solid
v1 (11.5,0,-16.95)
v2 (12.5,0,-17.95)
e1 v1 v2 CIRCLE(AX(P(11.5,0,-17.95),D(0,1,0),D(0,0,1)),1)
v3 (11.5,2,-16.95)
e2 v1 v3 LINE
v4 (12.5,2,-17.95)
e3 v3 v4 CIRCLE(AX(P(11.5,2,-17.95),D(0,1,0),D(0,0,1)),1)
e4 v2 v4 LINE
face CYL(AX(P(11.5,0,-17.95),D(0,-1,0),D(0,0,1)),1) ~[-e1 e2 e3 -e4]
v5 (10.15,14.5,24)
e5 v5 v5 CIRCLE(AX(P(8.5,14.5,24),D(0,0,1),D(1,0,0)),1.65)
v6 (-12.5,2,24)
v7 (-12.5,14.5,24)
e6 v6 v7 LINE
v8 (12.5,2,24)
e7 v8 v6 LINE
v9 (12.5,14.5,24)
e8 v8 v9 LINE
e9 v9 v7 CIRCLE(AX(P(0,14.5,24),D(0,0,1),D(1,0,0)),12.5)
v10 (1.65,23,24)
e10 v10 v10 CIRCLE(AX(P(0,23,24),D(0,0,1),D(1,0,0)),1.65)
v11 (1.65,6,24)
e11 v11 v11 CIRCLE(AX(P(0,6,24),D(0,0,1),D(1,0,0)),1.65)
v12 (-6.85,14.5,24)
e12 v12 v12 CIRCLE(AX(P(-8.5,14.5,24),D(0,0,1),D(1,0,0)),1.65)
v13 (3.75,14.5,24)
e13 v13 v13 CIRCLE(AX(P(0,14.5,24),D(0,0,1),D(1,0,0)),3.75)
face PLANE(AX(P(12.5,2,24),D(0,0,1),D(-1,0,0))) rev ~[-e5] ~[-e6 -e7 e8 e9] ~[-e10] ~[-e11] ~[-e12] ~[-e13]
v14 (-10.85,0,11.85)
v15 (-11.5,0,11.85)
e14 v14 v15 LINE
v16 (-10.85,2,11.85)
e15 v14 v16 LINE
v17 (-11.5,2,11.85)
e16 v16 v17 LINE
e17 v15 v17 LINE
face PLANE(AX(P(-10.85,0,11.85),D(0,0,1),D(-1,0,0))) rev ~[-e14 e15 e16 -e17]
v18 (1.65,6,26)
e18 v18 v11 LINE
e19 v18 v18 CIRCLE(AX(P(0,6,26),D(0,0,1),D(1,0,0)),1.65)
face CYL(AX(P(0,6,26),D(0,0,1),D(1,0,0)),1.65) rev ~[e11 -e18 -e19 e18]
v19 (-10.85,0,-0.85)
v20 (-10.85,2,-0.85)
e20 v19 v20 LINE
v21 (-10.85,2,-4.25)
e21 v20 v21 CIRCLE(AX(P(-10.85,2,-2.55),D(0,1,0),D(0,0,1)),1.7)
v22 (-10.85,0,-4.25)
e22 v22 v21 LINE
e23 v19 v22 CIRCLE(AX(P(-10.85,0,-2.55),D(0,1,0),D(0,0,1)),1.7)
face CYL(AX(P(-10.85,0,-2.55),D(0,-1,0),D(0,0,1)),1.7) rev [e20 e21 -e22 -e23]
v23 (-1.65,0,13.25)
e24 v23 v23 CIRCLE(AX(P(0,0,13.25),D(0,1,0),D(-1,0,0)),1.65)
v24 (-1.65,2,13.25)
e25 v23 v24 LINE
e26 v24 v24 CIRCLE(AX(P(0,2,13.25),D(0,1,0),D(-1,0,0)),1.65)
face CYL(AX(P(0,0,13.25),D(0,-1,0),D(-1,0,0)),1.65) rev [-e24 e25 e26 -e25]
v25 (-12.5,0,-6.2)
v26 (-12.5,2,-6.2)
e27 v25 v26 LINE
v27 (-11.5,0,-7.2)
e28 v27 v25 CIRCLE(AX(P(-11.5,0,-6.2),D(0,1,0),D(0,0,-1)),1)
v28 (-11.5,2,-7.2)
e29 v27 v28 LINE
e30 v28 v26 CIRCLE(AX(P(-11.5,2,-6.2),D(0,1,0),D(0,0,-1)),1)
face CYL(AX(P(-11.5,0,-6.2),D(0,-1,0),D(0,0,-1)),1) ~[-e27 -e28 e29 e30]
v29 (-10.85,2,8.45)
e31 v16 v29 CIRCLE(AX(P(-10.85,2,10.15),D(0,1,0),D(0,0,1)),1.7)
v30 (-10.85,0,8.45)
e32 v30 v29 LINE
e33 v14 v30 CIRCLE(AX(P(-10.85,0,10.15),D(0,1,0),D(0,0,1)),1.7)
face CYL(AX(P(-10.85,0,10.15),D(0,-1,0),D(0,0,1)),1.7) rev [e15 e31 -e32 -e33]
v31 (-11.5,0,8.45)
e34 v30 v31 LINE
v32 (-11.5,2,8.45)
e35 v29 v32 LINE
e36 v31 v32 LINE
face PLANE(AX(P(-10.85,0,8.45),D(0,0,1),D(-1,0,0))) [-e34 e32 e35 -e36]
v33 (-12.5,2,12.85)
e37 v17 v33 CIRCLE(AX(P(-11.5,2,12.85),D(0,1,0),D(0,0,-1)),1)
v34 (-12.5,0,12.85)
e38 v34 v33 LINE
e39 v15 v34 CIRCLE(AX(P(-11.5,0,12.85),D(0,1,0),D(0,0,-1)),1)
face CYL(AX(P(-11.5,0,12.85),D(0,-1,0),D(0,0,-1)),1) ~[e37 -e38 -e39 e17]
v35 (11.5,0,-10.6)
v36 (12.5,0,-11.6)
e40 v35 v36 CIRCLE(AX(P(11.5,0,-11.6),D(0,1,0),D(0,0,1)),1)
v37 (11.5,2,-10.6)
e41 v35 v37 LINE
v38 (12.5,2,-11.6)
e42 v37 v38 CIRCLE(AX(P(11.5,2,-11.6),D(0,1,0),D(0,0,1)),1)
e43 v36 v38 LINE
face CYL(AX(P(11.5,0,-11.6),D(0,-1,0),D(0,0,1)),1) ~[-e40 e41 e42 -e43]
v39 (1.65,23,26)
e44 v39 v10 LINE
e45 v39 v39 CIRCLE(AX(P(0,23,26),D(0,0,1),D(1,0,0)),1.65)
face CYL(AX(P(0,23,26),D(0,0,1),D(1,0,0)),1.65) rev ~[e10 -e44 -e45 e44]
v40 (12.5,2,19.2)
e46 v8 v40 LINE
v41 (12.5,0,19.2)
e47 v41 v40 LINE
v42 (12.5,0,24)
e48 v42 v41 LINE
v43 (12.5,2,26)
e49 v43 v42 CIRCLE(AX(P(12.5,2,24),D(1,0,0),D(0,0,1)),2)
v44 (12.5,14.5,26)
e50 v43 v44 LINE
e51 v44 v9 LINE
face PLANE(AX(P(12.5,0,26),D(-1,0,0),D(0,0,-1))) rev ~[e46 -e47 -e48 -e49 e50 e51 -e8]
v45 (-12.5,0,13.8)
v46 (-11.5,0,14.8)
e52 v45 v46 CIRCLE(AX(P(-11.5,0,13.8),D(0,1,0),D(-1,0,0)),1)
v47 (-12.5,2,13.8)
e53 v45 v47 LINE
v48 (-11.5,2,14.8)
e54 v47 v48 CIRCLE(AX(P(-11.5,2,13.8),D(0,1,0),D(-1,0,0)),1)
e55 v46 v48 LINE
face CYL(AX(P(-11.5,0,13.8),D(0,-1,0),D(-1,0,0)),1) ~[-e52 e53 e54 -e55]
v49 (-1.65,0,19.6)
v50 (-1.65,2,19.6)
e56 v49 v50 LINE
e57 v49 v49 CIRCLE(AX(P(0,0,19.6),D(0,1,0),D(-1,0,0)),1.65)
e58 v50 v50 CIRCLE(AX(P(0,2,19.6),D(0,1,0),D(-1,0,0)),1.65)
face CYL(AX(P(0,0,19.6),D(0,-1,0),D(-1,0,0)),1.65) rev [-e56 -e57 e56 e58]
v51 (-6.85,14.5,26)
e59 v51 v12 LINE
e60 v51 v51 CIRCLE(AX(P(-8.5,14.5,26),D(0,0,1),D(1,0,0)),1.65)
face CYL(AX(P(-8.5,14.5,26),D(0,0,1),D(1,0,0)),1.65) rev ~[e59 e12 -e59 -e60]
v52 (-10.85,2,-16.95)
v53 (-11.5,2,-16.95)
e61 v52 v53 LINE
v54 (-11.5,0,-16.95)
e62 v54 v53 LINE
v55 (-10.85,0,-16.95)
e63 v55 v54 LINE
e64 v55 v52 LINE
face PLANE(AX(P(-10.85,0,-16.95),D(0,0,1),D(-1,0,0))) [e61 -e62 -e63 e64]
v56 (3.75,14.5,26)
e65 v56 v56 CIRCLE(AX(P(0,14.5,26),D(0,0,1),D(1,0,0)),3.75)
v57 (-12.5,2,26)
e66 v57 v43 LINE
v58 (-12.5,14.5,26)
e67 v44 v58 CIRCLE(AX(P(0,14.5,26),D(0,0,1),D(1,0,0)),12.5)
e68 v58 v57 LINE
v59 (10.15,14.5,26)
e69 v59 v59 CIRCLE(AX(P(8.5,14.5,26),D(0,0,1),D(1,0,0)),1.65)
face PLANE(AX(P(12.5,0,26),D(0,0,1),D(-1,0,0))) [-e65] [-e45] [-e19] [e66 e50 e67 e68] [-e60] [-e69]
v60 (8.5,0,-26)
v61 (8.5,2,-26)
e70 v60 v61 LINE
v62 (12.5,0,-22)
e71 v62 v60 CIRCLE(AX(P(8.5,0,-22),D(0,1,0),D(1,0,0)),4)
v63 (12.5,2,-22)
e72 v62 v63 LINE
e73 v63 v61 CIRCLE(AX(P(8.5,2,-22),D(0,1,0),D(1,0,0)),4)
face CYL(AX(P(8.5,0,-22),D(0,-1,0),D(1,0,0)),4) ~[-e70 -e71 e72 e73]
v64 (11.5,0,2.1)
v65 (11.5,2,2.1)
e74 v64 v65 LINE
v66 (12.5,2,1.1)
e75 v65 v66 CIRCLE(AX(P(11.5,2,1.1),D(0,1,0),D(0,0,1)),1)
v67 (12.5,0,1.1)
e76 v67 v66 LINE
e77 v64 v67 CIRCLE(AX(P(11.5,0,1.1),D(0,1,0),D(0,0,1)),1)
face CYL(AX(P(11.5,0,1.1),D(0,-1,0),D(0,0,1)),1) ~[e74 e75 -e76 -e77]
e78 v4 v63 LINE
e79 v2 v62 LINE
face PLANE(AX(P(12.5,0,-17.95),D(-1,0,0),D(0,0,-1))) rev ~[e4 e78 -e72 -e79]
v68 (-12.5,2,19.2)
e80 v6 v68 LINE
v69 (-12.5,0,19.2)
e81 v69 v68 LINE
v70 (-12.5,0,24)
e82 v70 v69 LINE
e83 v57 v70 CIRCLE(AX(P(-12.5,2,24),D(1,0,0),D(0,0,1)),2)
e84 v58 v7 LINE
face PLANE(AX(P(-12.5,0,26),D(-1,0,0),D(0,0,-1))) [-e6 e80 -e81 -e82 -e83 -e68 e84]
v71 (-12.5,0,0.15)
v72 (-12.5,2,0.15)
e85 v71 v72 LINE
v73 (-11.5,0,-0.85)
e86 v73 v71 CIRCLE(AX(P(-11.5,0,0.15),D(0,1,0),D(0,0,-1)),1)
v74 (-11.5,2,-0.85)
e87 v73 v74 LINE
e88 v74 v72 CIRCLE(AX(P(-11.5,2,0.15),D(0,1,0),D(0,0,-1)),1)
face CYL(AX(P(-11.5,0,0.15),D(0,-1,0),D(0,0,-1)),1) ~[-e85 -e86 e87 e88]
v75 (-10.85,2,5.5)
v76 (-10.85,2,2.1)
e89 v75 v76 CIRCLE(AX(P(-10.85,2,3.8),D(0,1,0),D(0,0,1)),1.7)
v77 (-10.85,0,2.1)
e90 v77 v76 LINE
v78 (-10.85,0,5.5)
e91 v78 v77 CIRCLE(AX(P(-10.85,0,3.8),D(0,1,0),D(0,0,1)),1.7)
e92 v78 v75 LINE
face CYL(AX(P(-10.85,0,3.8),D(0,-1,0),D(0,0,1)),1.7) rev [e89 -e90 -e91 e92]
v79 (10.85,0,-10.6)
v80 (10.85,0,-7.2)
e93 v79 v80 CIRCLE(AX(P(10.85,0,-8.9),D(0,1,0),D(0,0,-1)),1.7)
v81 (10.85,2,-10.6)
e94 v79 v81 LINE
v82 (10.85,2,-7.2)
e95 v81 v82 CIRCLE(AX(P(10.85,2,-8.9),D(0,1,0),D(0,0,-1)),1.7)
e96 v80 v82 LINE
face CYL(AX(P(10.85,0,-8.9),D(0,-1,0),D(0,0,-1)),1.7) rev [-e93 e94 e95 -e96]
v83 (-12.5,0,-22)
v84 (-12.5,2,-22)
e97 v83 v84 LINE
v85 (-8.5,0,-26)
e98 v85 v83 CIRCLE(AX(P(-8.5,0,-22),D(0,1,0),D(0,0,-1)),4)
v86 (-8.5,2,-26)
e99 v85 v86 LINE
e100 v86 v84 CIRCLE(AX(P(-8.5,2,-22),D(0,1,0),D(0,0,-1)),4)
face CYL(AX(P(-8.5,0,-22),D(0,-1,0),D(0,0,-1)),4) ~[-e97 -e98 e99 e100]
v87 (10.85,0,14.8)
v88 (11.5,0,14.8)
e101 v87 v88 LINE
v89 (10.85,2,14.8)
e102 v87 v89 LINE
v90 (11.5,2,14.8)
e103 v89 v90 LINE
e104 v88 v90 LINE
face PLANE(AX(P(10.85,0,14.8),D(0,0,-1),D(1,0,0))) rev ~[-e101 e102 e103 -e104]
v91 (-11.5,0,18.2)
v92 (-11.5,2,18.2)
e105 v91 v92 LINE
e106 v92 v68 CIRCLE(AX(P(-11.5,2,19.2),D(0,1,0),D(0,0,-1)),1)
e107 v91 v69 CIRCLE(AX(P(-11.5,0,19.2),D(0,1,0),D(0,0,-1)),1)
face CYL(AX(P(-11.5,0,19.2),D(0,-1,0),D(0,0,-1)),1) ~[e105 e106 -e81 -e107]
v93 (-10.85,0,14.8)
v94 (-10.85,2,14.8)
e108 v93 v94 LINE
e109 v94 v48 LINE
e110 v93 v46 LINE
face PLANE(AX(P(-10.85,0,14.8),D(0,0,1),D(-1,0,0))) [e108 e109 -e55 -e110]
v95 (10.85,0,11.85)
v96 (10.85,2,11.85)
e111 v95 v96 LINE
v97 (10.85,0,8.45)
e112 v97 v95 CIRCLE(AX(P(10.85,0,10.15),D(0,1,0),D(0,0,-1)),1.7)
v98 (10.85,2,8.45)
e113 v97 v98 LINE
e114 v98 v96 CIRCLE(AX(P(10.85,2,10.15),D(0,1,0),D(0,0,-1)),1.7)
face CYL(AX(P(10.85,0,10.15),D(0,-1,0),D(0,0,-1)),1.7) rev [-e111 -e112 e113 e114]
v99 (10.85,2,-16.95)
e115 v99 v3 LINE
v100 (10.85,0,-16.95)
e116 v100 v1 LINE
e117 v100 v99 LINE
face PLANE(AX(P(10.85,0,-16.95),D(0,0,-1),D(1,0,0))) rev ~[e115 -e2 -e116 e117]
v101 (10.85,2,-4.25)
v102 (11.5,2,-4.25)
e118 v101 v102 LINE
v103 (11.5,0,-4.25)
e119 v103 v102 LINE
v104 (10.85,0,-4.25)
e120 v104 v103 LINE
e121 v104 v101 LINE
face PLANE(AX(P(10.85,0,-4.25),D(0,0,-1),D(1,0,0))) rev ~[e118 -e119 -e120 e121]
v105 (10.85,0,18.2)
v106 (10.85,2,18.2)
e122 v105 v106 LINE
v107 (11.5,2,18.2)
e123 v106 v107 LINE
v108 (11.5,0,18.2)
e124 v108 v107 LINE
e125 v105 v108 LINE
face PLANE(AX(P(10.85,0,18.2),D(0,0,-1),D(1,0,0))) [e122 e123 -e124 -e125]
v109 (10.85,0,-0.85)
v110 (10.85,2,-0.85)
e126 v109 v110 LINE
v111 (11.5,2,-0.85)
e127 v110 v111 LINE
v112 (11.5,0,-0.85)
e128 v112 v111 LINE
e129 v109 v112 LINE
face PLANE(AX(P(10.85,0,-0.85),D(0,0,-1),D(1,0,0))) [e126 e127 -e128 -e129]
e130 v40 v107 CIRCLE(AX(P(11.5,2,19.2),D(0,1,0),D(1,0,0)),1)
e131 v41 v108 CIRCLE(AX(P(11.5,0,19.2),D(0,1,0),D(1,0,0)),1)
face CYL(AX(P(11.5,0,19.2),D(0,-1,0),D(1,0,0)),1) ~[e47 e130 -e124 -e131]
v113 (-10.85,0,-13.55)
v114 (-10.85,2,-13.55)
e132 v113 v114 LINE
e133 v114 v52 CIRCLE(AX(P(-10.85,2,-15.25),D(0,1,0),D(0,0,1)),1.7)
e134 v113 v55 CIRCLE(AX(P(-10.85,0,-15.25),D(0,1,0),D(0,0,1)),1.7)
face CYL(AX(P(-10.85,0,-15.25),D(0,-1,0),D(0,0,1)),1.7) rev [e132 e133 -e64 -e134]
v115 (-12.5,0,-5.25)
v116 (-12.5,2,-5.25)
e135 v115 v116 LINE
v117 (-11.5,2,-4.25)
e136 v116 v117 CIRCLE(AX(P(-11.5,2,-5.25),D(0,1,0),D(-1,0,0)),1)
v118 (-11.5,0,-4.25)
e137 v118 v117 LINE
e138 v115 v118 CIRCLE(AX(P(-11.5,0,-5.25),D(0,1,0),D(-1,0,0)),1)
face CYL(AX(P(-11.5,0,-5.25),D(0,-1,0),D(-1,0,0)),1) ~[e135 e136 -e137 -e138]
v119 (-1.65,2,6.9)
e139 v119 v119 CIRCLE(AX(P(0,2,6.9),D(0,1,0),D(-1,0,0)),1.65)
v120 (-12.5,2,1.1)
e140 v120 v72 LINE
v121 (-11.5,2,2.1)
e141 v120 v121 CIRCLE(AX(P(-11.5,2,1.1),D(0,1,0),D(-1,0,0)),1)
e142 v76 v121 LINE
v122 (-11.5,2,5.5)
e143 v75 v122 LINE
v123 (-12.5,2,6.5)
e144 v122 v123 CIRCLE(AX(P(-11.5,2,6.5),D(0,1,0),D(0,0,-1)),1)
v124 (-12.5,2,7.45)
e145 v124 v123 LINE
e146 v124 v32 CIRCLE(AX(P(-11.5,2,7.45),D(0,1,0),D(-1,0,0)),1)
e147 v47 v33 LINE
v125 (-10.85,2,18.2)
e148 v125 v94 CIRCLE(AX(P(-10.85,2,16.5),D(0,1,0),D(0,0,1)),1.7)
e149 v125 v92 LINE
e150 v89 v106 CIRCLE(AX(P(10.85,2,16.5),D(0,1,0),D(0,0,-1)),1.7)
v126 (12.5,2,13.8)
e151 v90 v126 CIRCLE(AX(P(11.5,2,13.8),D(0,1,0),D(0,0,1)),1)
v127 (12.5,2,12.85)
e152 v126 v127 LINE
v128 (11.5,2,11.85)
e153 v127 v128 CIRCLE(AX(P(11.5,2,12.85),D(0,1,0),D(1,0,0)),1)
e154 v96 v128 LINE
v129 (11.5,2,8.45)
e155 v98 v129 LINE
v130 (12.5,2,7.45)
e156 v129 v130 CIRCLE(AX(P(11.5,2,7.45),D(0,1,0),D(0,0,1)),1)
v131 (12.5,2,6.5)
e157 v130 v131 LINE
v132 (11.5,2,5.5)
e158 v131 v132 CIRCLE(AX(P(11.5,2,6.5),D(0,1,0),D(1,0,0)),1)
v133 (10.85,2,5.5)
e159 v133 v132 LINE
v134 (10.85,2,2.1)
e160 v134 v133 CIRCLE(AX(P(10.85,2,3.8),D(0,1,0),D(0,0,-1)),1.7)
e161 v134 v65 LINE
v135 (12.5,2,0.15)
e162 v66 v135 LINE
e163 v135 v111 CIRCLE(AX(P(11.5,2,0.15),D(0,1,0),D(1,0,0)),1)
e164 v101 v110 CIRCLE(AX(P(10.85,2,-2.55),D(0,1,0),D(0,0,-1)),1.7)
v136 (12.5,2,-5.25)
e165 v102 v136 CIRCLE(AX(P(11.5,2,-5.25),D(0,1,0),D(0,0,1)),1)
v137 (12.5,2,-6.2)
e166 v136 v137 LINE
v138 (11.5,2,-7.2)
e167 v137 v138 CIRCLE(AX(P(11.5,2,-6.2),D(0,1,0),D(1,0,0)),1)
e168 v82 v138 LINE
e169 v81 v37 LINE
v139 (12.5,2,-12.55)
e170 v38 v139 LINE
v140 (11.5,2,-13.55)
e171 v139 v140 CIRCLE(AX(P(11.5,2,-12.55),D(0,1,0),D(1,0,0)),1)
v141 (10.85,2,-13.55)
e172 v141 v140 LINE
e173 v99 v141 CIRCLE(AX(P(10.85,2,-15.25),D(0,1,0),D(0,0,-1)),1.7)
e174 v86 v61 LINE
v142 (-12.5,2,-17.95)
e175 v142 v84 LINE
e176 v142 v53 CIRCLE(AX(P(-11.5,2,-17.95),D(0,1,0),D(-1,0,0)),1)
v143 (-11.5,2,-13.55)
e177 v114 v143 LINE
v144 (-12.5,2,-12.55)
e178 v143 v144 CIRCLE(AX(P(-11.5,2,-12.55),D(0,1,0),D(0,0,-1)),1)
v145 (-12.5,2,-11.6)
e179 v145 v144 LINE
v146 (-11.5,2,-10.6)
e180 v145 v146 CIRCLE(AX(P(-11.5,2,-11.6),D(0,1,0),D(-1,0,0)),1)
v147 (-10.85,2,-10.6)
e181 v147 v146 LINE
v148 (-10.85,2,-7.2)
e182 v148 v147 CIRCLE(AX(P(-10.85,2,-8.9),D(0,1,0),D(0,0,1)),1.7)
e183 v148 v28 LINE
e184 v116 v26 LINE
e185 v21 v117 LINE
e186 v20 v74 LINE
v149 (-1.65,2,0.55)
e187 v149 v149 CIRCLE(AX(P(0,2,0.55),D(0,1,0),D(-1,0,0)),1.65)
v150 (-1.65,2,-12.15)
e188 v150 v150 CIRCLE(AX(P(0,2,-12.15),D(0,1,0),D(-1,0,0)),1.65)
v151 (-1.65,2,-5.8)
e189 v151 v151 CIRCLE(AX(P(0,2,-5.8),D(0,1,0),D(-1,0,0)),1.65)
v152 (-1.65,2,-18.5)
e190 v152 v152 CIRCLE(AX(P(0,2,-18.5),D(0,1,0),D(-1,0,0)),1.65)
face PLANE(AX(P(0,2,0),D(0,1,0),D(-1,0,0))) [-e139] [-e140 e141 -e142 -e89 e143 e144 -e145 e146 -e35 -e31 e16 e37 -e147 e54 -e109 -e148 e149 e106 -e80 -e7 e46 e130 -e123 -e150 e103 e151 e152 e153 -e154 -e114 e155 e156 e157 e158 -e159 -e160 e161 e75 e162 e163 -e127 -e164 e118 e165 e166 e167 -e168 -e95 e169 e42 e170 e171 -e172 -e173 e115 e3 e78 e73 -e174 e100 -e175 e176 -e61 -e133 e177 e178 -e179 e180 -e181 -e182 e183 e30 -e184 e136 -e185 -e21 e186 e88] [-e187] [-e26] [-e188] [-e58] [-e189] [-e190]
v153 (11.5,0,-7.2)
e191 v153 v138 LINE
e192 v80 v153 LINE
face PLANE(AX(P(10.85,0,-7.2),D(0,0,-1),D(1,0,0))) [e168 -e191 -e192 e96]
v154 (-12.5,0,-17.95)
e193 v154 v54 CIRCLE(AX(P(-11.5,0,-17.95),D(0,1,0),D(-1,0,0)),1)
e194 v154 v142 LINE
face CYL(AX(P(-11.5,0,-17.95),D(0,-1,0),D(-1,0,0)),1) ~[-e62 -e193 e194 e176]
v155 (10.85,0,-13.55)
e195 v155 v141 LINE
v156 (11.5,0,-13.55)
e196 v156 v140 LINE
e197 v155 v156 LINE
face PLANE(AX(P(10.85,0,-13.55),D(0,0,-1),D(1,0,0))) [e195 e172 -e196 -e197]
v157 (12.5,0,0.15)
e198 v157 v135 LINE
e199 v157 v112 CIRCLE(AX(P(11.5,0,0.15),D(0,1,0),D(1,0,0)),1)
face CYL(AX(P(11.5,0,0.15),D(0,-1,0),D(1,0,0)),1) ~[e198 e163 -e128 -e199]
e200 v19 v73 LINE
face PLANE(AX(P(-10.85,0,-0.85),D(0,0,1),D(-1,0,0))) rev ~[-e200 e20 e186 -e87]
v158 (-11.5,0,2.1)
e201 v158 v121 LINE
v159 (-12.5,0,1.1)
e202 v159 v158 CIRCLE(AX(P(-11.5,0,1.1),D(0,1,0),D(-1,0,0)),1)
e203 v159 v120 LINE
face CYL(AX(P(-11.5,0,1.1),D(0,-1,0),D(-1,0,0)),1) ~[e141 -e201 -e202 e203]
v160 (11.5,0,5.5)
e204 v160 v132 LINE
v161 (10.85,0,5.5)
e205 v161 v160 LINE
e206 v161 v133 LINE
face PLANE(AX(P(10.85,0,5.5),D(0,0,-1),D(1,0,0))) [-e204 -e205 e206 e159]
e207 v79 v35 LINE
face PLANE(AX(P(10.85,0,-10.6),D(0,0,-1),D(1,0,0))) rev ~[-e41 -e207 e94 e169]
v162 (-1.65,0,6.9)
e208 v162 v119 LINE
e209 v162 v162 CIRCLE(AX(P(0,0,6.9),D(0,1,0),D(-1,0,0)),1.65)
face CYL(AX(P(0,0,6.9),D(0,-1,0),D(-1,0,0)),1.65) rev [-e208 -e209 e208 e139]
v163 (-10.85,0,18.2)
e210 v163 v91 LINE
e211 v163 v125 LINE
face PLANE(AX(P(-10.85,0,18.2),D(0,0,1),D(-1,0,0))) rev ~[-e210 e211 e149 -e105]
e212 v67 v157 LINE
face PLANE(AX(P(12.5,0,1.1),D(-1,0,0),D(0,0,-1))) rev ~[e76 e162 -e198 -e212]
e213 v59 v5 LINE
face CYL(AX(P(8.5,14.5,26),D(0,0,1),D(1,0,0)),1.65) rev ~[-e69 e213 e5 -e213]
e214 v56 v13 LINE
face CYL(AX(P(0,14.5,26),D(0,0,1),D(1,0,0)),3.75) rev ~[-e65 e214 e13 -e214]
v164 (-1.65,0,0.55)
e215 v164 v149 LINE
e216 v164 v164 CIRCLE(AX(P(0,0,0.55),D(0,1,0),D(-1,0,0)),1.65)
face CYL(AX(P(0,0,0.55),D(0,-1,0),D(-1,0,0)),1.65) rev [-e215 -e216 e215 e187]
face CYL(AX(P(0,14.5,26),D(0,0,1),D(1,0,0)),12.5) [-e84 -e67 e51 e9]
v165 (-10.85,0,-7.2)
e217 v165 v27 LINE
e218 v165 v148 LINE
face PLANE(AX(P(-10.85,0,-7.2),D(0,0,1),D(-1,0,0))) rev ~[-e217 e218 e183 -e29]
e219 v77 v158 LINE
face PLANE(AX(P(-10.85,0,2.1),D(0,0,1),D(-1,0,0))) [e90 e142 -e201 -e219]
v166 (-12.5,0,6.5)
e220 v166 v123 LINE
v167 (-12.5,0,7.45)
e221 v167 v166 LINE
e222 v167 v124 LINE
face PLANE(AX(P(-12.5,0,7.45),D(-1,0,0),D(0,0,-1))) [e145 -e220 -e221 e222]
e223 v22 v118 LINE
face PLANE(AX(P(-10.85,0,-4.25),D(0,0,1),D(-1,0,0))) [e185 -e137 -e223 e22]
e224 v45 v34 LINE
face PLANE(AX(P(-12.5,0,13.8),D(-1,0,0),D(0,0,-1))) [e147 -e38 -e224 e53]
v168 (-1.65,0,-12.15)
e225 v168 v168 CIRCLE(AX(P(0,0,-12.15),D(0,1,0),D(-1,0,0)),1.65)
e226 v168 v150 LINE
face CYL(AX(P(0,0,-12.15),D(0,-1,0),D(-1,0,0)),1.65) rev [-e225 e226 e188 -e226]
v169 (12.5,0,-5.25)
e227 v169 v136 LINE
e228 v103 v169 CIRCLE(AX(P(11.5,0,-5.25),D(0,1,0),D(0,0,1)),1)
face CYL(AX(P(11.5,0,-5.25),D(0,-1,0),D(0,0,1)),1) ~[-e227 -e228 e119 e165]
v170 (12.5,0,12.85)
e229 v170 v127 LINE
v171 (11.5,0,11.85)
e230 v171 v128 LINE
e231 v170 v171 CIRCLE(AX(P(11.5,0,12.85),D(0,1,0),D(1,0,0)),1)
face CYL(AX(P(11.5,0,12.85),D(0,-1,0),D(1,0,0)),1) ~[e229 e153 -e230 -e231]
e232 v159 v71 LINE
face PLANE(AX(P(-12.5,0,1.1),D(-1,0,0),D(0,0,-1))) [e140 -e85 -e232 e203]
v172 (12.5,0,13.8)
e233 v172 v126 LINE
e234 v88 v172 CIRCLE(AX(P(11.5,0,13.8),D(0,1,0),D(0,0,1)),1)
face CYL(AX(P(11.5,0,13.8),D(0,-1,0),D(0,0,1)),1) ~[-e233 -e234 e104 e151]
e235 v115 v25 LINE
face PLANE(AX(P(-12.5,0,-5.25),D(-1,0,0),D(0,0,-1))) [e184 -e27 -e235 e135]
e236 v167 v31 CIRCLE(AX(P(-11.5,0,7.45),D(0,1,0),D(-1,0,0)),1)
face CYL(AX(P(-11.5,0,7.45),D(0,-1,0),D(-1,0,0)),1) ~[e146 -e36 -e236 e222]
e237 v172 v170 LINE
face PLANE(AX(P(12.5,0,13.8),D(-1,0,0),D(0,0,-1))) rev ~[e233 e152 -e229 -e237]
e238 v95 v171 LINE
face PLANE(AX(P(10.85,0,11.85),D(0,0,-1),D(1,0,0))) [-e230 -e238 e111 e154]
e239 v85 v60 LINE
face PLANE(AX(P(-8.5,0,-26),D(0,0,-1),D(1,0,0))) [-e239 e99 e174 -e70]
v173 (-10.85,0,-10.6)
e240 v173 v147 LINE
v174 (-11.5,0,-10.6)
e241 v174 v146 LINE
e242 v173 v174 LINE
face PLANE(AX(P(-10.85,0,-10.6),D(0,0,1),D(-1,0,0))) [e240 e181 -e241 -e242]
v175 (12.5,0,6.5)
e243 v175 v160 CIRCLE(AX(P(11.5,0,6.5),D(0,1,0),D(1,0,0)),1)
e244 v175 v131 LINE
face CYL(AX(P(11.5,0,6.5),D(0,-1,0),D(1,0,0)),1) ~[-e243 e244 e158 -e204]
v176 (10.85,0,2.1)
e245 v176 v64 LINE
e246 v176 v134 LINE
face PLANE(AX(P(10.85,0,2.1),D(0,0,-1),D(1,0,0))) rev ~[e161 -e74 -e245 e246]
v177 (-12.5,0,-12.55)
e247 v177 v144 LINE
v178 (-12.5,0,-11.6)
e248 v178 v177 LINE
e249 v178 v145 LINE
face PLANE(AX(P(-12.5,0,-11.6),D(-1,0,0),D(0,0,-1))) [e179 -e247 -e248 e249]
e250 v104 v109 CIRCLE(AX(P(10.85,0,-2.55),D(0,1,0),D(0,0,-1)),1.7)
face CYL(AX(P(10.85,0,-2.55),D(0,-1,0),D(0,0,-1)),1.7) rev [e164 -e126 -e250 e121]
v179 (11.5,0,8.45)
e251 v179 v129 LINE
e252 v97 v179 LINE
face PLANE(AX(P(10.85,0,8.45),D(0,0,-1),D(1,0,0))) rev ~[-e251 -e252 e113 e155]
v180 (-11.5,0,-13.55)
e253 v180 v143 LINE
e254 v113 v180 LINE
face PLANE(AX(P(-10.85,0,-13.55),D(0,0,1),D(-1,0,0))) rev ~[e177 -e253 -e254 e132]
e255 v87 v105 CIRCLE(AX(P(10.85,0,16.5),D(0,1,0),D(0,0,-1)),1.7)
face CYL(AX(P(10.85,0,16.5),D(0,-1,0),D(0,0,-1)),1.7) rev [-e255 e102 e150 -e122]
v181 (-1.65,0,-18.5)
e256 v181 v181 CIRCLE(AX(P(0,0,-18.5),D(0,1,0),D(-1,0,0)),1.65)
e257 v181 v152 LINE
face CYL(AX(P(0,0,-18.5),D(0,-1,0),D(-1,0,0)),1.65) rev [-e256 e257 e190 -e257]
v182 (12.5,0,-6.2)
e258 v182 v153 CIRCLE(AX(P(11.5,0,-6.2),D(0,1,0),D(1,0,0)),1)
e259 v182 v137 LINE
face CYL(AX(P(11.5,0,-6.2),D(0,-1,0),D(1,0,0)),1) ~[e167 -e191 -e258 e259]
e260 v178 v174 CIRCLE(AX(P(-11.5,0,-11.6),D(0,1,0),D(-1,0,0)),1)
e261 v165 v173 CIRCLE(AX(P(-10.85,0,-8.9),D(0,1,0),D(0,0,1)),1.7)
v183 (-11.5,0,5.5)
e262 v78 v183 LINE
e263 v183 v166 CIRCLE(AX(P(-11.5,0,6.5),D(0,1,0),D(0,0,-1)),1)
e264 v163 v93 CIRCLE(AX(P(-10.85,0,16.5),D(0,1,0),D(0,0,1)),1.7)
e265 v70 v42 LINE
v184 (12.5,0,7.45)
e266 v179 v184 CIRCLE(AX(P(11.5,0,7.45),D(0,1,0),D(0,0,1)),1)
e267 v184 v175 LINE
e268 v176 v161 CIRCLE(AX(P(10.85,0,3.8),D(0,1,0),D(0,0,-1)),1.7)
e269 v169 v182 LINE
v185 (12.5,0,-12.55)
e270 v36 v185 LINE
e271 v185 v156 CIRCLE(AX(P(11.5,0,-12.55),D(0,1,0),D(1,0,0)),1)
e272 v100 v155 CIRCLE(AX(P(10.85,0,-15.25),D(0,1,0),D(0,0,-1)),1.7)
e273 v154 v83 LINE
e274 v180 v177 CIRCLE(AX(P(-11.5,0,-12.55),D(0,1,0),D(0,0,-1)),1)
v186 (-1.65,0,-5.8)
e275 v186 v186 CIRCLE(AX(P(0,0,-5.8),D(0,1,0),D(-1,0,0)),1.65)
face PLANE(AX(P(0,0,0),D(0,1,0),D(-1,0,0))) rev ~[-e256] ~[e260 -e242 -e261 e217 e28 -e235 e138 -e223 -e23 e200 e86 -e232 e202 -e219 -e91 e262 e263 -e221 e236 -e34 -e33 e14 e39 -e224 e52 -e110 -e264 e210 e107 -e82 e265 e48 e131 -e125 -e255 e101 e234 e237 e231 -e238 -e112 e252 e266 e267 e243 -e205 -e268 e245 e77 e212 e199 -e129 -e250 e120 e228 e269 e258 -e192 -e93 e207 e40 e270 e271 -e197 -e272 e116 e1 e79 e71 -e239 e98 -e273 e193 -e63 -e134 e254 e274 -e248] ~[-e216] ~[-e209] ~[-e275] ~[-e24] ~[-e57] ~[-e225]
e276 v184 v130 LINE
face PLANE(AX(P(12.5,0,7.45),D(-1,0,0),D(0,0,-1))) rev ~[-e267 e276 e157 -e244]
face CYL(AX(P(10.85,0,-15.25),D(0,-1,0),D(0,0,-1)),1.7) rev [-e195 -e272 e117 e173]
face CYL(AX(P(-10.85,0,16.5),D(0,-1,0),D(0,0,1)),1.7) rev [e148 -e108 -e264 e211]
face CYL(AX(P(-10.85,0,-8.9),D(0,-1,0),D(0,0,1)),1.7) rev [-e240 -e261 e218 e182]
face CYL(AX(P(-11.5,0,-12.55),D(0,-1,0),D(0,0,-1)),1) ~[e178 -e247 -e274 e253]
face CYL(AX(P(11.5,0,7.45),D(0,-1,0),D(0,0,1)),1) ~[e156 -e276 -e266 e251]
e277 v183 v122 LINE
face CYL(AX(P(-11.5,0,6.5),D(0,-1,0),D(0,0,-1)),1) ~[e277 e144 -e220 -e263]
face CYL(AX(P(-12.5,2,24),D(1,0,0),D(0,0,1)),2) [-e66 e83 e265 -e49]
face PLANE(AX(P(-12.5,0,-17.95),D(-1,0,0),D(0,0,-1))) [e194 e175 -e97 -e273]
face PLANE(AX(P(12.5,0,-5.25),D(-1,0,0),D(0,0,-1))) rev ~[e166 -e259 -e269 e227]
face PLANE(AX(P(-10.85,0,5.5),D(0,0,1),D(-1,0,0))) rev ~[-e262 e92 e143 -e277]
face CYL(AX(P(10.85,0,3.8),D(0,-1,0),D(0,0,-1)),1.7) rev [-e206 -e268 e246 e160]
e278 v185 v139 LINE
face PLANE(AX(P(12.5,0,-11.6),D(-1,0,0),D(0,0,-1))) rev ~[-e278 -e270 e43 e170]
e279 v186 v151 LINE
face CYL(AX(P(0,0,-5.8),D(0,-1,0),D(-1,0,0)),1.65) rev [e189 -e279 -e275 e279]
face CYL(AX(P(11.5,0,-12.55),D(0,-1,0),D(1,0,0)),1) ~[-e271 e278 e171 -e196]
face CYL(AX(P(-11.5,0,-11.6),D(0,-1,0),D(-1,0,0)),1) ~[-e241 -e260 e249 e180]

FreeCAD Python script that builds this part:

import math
import FreeCAD as App
import Part
import Sketcher


def edges_at(feature, points):
    """Names of the edges that pass closest to the given points."""
    edges = feature.Shape.Edges
    near = lambda p: min(range(len(edges)), key=lambda i: edges[i].distToShape(Part.Vertex(*p))[0])
    return sorted({f"Edge{near(p) + 1}" for p in points})

doc = App.newDocument("Part")
body = doc.addObject("PartDesign::Body", "Body")

# Sketch on XZ plane
sketch1 = doc.addObject("Sketcher::SketchObject", "Sketch")
body.addObject(sketch1)
sketch1.AttachmentSupport = (doc.XZ_Plane, [""])
sketch1.MapMode = "FlatFace"
sketch1.addGeometry([
    Part.LineSegment(App.Vector(-12.5, 26, 0), App.Vector(12.5, 26, 0)),  # 0
    Part.LineSegment(App.Vector(12.5, 26, 0), App.Vector(12.5, 19.2, 0)),  # 1
    Part.ArcOfCircle(Part.Circle(App.Vector(11.5, 19.2, 0), App.Vector(0, 0, 1), 1), math.radians(-90), math.radians(0)),  # 2
    Part.LineSegment(App.Vector(11.5, 18.2, 0), App.Vector(10.8, 18.2, 0)),  # 3
    Part.ArcOfCircle(Part.Circle(App.Vector(10.8, 16.5, 0), App.Vector(0, 0, 1), 1.7), math.radians(90), math.radians(270)),  # 4
    Part.LineSegment(App.Vector(10.8, 14.8, 0), App.Vector(11.5, 14.8, 0)),  # 5
    Part.ArcOfCircle(Part.Circle(App.Vector(11.5, 13.8, 0), App.Vector(0, 0, 1), 1), math.radians(0), math.radians(90)),  # 6
    Part.LineSegment(App.Vector(12.5, 13.8, 0), App.Vector(12.5, 12.8, 0)),  # 7
    Part.ArcOfCircle(Part.Circle(App.Vector(11.5, 12.8, 0), App.Vector(0, 0, 1), 1), math.radians(-90), math.radians(0)),  # 8
    Part.LineSegment(App.Vector(11.5, 11.8, 0), App.Vector(10.8, 11.8, 0)),  # 9
    Part.ArcOfCircle(Part.Circle(App.Vector(10.8, 10.2, 0), App.Vector(0, 0, 1), 1.7), math.radians(90), math.radians(270)),  # 10
    Part.LineSegment(App.Vector(10.8, 8.4, 0), App.Vector(11.5, 8.4, 0)),  # 11
    Part.ArcOfCircle(Part.Circle(App.Vector(11.5, 7.5, 0), App.Vector(0, 0, 1), 1), math.radians(0), math.radians(90)),  # 12
    Part.LineSegment(App.Vector(12.5, 7.5, 0), App.Vector(12.5, 6.5, 0)),  # 13
    Part.ArcOfCircle(Part.Circle(App.Vector(11.5, 6.5, 0), App.Vector(0, 0, 1), 1), math.radians(-90), math.radians(0)),  # 14
    Part.LineSegment(App.Vector(11.5, 5.5, 0), App.Vector(10.8, 5.5, 0)),  # 15
    Part.ArcOfCircle(Part.Circle(App.Vector(10.8, 3.8, 0), App.Vector(0, 0, 1), 1.7), math.radians(90), math.radians(270)),  # 16
    Part.LineSegment(App.Vector(10.8, 2.1, 0), App.Vector(11.5, 2.1, 0)),  # 17
    Part.ArcOfCircle(Part.Circle(App.Vector(11.5, 1.1, 0), App.Vector(0, 0, 1), 1), math.radians(0), math.radians(90)),  # 18
    Part.LineSegment(App.Vector(12.5, 1.1, 0), App.Vector(12.5, 0.1, 0)),  # 19
    Part.ArcOfCircle(Part.Circle(App.Vector(11.5, 0.1, 0), App.Vector(0, 0, 1), 1), math.radians(-90), math.radians(0)),  # 20
    Part.LineSegment(App.Vector(11.5, -0.8, 0), App.Vector(10.8, -0.8, 0)),  # 21
    Part.ArcOfCircle(Part.Circle(App.Vector(10.8, -2.5, 0), App.Vector(0, 0, 1), 1.7), math.radians(90), math.radians(270)),  # 22
    Part.LineSegment(App.Vector(10.8, -4.2, 0), App.Vector(11.5, -4.2, 0)),  # 23
    Part.ArcOfCircle(Part.Circle(App.Vector(11.5, -5.2, 0), App.Vector(0, 0, 1), 1), math.radians(0), math.radians(90)),  # 24
    Part.LineSegment(App.Vector(12.5, -5.2, 0), App.Vector(12.5, -6.2, 0)),  # 25
    Part.ArcOfCircle(Part.Circle(App.Vector(11.5, -6.2, 0), App.Vector(0, 0, 1), 1), math.radians(-90), math.radians(0)),  # 26
    Part.LineSegment(App.Vector(11.5, -7.2, 0), App.Vector(10.8, -7.2, 0)),  # 27
    Part.ArcOfCircle(Part.Circle(App.Vector(10.8, -8.9, 0), App.Vector(0, 0, 1), 1.7), math.radians(90), math.radians(270)),  # 28
    Part.LineSegment(App.Vector(10.8, -10.6, 0), App.Vector(11.5, -10.6, 0)),  # 29
    Part.ArcOfCircle(Part.Circle(App.Vector(11.5, -11.6, 0), App.Vector(0, 0, 1), 1), math.radians(0), math.radians(90)),  # 30
    Part.LineSegment(App.Vector(12.5, -11.6, 0), App.Vector(12.5, -12.6, 0)),  # 31
    Part.ArcOfCircle(Part.Circle(App.Vector(11.5, -12.6, 0), App.Vector(0, 0, 1), 1), math.radians(-90), math.radians(0)),  # 32
    Part.LineSegment(App.Vector(11.5, -13.6, 0), App.Vector(10.8, -13.6, 0)),  # 33
    Part.ArcOfCircle(Part.Circle(App.Vector(10.8, -15.2, 0), App.Vector(0, 0, 1), 1.7), math.radians(90), math.radians(270)),  # 34
    Part.LineSegment(App.Vector(10.8, -16.9, 0), App.Vector(11.5, -16.9, 0)),  # 35
    Part.ArcOfCircle(Part.Circle(App.Vector(11.5, -17.9, 0), App.Vector(0, 0, 1), 1), math.radians(0), math.radians(90)),  # 36
    Part.LineSegment(App.Vector(12.5, -17.9, 0), App.Vector(12.5, -22, 0)),  # 37
    Part.ArcOfCircle(Part.Circle(App.Vector(8.5, -22, 0), App.Vector(0, 0, 1), 4), math.radians(-90), math.radians(0)),  # 38
    Part.LineSegment(App.Vector(8.5, -26, 0), App.Vector(-8.5, -26, 0)),  # 39
    Part.ArcOfCircle(Part.Circle(App.Vector(-8.5, -22, 0), App.Vector(0, 0, 1), 4), math.radians(180), math.radians(270)),  # 40
    Part.LineSegment(App.Vector(-12.5, -22, 0), App.Vector(-12.5, -17.9, 0)),  # 41
    Part.ArcOfCircle(Part.Circle(App.Vector(-11.5, -17.9, 0), App.Vector(0, 0, 1), 1), math.radians(90), math.radians(180)),  # 42
    Part.LineSegment(App.Vector(-11.5, -16.9, 0), App.Vector(-10.8, -16.9, 0)),  # 43
    Part.ArcOfCircle(Part.Circle(App.Vector(-10.8, -15.2, 0), App.Vector(0, 0, 1), 1.7), math.radians(-90), math.radians(90)),  # 44
    Part.LineSegment(App.Vector(-10.8, -13.6, 0), App.Vector(-11.5, -13.6, 0)),  # 45
    Part.ArcOfCircle(Part.Circle(App.Vector(-11.5, -12.6, 0), App.Vector(0, 0, 1), 1), math.radians(180), math.radians(270)),  # 46
    Part.LineSegment(App.Vector(-12.5, -12.6, 0), App.Vector(-12.5, -11.6, 0)),  # 47
    Part.ArcOfCircle(Part.Circle(App.Vector(-11.5, -11.6, 0), App.Vector(0, 0, 1), 1), math.radians(90), math.radians(180)),  # 48
    Part.LineSegment(App.Vector(-11.5, -10.6, 0), App.Vector(-10.8, -10.6, 0)),  # 49
    Part.ArcOfCircle(Part.Circle(App.Vector(-10.8, -8.9, 0), App.Vector(0, 0, 1), 1.7), math.radians(-90), math.radians(90)),  # 50
    Part.LineSegment(App.Vector(-10.8, -7.2, 0), App.Vector(-11.5, -7.2, 0)),  # 51
    Part.ArcOfCircle(Part.Circle(App.Vector(-11.5, -6.2, 0), App.Vector(0, 0, 1), 1), math.radians(180), math.radians(270)),  # 52
    Part.LineSegment(App.Vector(-12.5, -6.2, 0), App.Vector(-12.5, -5.2, 0)),  # 53
    Part.ArcOfCircle(Part.Circle(App.Vector(-11.5, -5.2, 0), App.Vector(0, 0, 1), 1), math.radians(90), math.radians(180)),  # 54
    Part.LineSegment(App.Vector(-11.5, -4.2, 0), App.Vector(-10.8, -4.2, 0)),  # 55
    Part.ArcOfCircle(Part.Circle(App.Vector(-10.8, -2.5, 0), App.Vector(0, 0, 1), 1.7), math.radians(-90), math.radians(90)),  # 56
    Part.LineSegment(App.Vector(-10.8, -0.8, 0), App.Vector(-11.5, -0.8, 0)),  # 57
    Part.ArcOfCircle(Part.Circle(App.Vector(-11.5, 0.1, 0), App.Vector(0, 0, 1), 1), math.radians(180), math.radians(270)),  # 58
    Part.LineSegment(App.Vector(-12.5, 0.1, 0), App.Vector(-12.5, 1.1, 0)),  # 59
    Part.ArcOfCircle(Part.Circle(App.Vector(-11.5, 1.1, 0), App.Vector(0, 0, 1), 1), math.radians(90), math.radians(180)),  # 60
    Part.LineSegment(App.Vector(-11.5, 2.1, 0), App.Vector(-10.8, 2.1, 0)),  # 61
    Part.ArcOfCircle(Part.Circle(App.Vector(-10.8, 3.8, 0), App.Vector(0, 0, 1), 1.7), math.radians(-90), math.radians(90)),  # 62
    Part.LineSegment(App.Vector(-10.8, 5.5, 0), App.Vector(-11.5, 5.5, 0)),  # 63
    Part.ArcOfCircle(Part.Circle(App.Vector(-11.5, 6.5, 0), App.Vector(0, 0, 1), 1), math.radians(180), math.radians(270)),  # 64
    Part.LineSegment(App.Vector(-12.5, 6.5, 0), App.Vector(-12.5, 7.5, 0)),  # 65
    Part.ArcOfCircle(Part.Circle(App.Vector(-11.5, 7.5, 0), App.Vector(0, 0, 1), 1), math.radians(90), math.radians(180)),  # 66
    Part.LineSegment(App.Vector(-11.5, 8.4, 0), App.Vector(-10.8, 8.4, 0)),  # 67
    Part.ArcOfCircle(Part.Circle(App.Vector(-10.8, 10.2, 0), App.Vector(0, 0, 1), 1.7), math.radians(-90), math.radians(90)),  # 68
    Part.LineSegment(App.Vector(-10.8, 11.8, 0), App.Vector(-11.5, 11.8, 0)),  # 69
    Part.ArcOfCircle(Part.Circle(App.Vector(-11.5, 12.8, 0), App.Vector(0, 0, 1), 1), math.radians(180), math.radians(270)),  # 70
    Part.LineSegment(App.Vector(-12.5, 12.8, 0), App.Vector(-12.5, 13.8, 0)),  # 71
    Part.ArcOfCircle(Part.Circle(App.Vector(-11.5, 13.8, 0), App.Vector(0, 0, 1), 1), math.radians(90), math.radians(180)),  # 72
    Part.LineSegment(App.Vector(-11.5, 14.8, 0), App.Vector(-10.8, 14.8, 0)),  # 73
    Part.ArcOfCircle(Part.Circle(App.Vector(-10.8, 16.5, 0), App.Vector(0, 0, 1), 1.7), math.radians(-90), math.radians(90)),  # 74
    Part.LineSegment(App.Vector(-10.8, 18.2, 0), App.Vector(-11.5, 18.2, 0)),  # 75
    Part.ArcOfCircle(Part.Circle(App.Vector(-11.5, 19.2, 0), App.Vector(0, 0, 1), 1), math.radians(180), math.radians(270)),  # 76
    Part.LineSegment(App.Vector(-12.5, 19.2, 0), App.Vector(-12.5, 26, 0)),  # 77
    Part.Circle(App.Vector(0, -18.5, 0), App.Vector(0, 0, 1), 1.6),  # 78
    Part.Circle(App.Vector(0, -12.2, 0), App.Vector(0, 0, 1), 1.6),  # 79
    Part.Circle(App.Vector(0, -5.8, 0), App.Vector(0, 0, 1), 1.6),  # 80
    Part.Circle(App.Vector(0, 0.6, 0), App.Vector(0, 0, 1), 1.6),  # 81
    Part.Circle(App.Vector(0, 6.9, 0), App.Vector(0, 0, 1), 1.6),  # 82
    Part.Circle(App.Vector(0, 13.2, 0), App.Vector(0, 0, 1), 1.6),  # 83
    Part.Circle(App.Vector(0, 19.6, 0), App.Vector(0, 0, 1), 1.6),  # 84
], False)
sketch1.addConstraint([
    Sketcher.Constraint("Coincident", 0, 2, 1, 1),
    Sketcher.Constraint("Tangent", 1, 2, 2, 2),
    Sketcher.Constraint("Tangent", 2, 1, 3, 1),
    Sketcher.Constraint("Tangent", 3, 2, 4, 1),
    Sketcher.Constraint("Tangent", 4, 2, 5, 1),
    Sketcher.Constraint("Tangent", 5, 2, 6, 2),
    Sketcher.Constraint("Tangent", 6, 1, 7, 1),
    Sketcher.Constraint("Tangent", 7, 2, 8, 2),
    Sketcher.Constraint("Tangent", 8, 1, 9, 1),
    Sketcher.Constraint("Tangent", 9, 2, 10, 1),
    Sketcher.Constraint("Tangent", 10, 2, 11, 1),
    Sketcher.Constraint("Tangent", 11, 2, 12, 2),
    Sketcher.Constraint("Tangent", 12, 1, 13, 1),
    Sketcher.Constraint("Tangent", 13, 2, 14, 2),
    Sketcher.Constraint("Tangent", 14, 1, 15, 1),
    Sketcher.Constraint("Tangent", 15, 2, 16, 1),
    Sketcher.Constraint("Tangent", 16, 2, 17, 1),
    Sketcher.Constraint("Tangent", 17, 2, 18, 2),
    Sketcher.Constraint("Tangent", 18, 1, 19, 1),
    Sketcher.Constraint("Tangent", 19, 2, 20, 2),
    Sketcher.Constraint("Tangent", 20, 1, 21, 1),
    Sketcher.Constraint("Tangent", 21, 2, 22, 1),
    Sketcher.Constraint("Tangent", 22, 2, 23, 1),
    Sketcher.Constraint("Tangent", 23, 2, 24, 2),
    Sketcher.Constraint("Tangent", 24, 1, 25, 1),
    Sketcher.Constraint("Tangent", 25, 2, 26, 2),
    Sketcher.Constraint("Tangent", 26, 1, 27, 1),
    Sketcher.Constraint("Tangent", 27, 2, 28, 1),
    Sketcher.Constraint("Tangent", 28, 2, 29, 1),
    Sketcher.Constraint("Tangent", 29, 2, 30, 2),
    Sketcher.Constraint("Tangent", 30, 1, 31, 1),
    Sketcher.Constraint("Tangent", 31, 2, 32, 2),
    Sketcher.Constraint("Tangent", 32, 1, 33, 1),
    Sketcher.Constraint("Tangent", 33, 2, 34, 1),
    Sketcher.Constraint("Tangent", 34, 2, 35, 1),
    Sketcher.Constraint("Tangent", 35, 2, 36, 2),
    Sketcher.Constraint("Tangent", 36, 1, 37, 1),
    Sketcher.Constraint("Tangent", 37, 2, 38, 2),
    Sketcher.Constraint("Tangent", 38, 1, 39, 1),
    Sketcher.Constraint("Tangent", 39, 2, 40, 2),
    Sketcher.Constraint("Tangent", 40, 1, 41, 1),
    Sketcher.Constraint("Tangent", 41, 2, 42, 2),
    Sketcher.Constraint("Tangent", 42, 1, 43, 1),
    Sketcher.Constraint("Tangent", 43, 2, 44, 1),
    Sketcher.Constraint("Tangent", 44, 2, 45, 1),
    Sketcher.Constraint("Tangent", 45, 2, 46, 2),
    Sketcher.Constraint("Tangent", 46, 1, 47, 1),
    Sketcher.Constraint("Tangent", 47, 2, 48, 2),
    Sketcher.Constraint("Tangent", 48, 1, 49, 1),
    Sketcher.Constraint("Tangent", 49, 2, 50, 1),
    Sketcher.Constraint("Tangent", 50, 2, 51, 1),
    Sketcher.Constraint("Tangent", 51, 2, 52, 2),
    Sketcher.Constraint("Tangent", 52, 1, 53, 1),
    Sketcher.Constraint("Tangent", 53, 2, 54, 2),
    Sketcher.Constraint("Tangent", 54, 1, 55, 1),
    Sketcher.Constraint("Tangent", 55, 2, 56, 1),
    Sketcher.Constraint("Tangent", 56, 2, 57, 1),
    Sketcher.Constraint("Tangent", 57, 2, 58, 2),
    Sketcher.Constraint("Tangent", 58, 1, 59, 1),
    Sketcher.Constraint("Tangent", 59, 2, 60, 2),
    Sketcher.Constraint("Tangent", 60, 1, 61, 1),
    Sketcher.Constraint("Tangent", 61, 2, 62, 1),
    Sketcher.Constraint("Tangent", 62, 2, 63, 1),
    Sketcher.Constraint("Tangent", 63, 2, 64, 2),
    Sketcher.Constraint("Tangent", 64, 1, 65, 1),
    Sketcher.Constraint("Tangent", 65, 2, 66, 2),
    Sketcher.Constraint("Tangent", 66, 1, 67, 1),
    Sketcher.Constraint("Tangent", 67, 2, 68, 1),
    Sketcher.Constraint("Tangent", 68, 2, 69, 1),
    Sketcher.Constraint("Tangent", 69, 2, 70, 2),
    Sketcher.Constraint("Tangent", 70, 1, 71, 1),
    Sketcher.Constraint("Tangent", 71, 2, 72, 2),
    Sketcher.Constraint("Tangent", 72, 1, 73, 1),
    Sketcher.Constraint("Tangent", 73, 2, 74, 1),
    Sketcher.Constraint("Tangent", 74, 2, 75, 1),
    Sketcher.Constraint("Tangent", 75, 2, 76, 2),
    Sketcher.Constraint("Tangent", 76, 1, 77, 1),
    Sketcher.Constraint("Coincident", 77, 2, 0, 1),
    Sketcher.Constraint("Horizontal", 0),
    Sketcher.Constraint("Vertical", 1),
    Sketcher.Constraint("Horizontal", 3),
    Sketcher.Constraint("Horizontal", 5),
    Sketcher.Constraint("Vertical", 7),
    Sketcher.Constraint("Horizontal", 9),
    Sketcher.Constraint("Horizontal", 11),
    Sketcher.Constraint("Vertical", 13),
    Sketcher.Constraint("Horizontal", 15),
    Sketcher.Constraint("Horizontal", 17),
    Sketcher.Constraint("Vertical", 19),
    Sketcher.Constraint("Horizontal", 21),
    Sketcher.Constraint("Horizontal", 23),
    Sketcher.Constraint("Vertical", 25),
    Sketcher.Constraint("Horizontal", 27),
    Sketcher.Constraint("Horizontal", 29),
    Sketcher.Constraint("Vertical", 31),
    Sketcher.Constraint("Horizontal", 33),
    Sketcher.Constraint("Horizontal", 35),
    Sketcher.Constraint("Vertical", 37),
    Sketcher.Constraint("Horizontal", 39),
    Sketcher.Constraint("Vertical", 41),
    Sketcher.Constraint("Horizontal", 43),
    Sketcher.Constraint("Horizontal", 45),
    Sketcher.Constraint("Vertical", 47),
    Sketcher.Constraint("Horizontal", 49),
    Sketcher.Constraint("Horizontal", 51),
    Sketcher.Constraint("Vertical", 53),
    Sketcher.Constraint("Horizontal", 55),
    Sketcher.Constraint("Horizontal", 57),
    Sketcher.Constraint("Vertical", 59),
    Sketcher.Constraint("Horizontal", 61),
    Sketcher.Constraint("Horizontal", 63),
    Sketcher.Constraint("Vertical", 65),
    Sketcher.Constraint("Horizontal", 67),
    Sketcher.Constraint("Horizontal", 69),
    Sketcher.Constraint("Vertical", 71),
    Sketcher.Constraint("Horizontal", 73),
    Sketcher.Constraint("Horizontal", 75),
    Sketcher.Constraint("Vertical", 77),
    Sketcher.Constraint("Equal", 2, 6),
    Sketcher.Constraint("Equal", 6, 8),
    Sketcher.Constraint("Equal", 4, 10),
    Sketcher.Constraint("Equal", 8, 12),
    Sketcher.Constraint("Equal", 12, 14),
    Sketcher.Constraint("Equal", 10, 16),
    Sketcher.Constraint("Equal", 14, 18),
    Sketcher.Constraint("Equal", 18, 20),
    Sketcher.Constraint("Equal", 16, 22),
    Sketcher.Constraint("Equal", 20, 24),
    Sketcher.Constraint("Equal", 24, 26),
    Sketcher.Constraint("Equal", 22, 28),
    Sketcher.Constraint("Equal", 26, 30),
    Sketcher.Constraint("Equal", 30, 32),
    Sketcher.Constraint("Equal", 28, 34),
    Sketcher.Constraint("Equal", 32, 36),
    Sketcher.Constraint("Equal", 38, 40),
    Sketcher.Constraint("Equal", 36, 42),
    Sketcher.Constraint("Equal", 34, 44),
    Sketcher.Constraint("Equal", 42, 46),
    Sketcher.Constraint("Equal", 46, 48),
    Sketcher.Constraint("Equal", 44, 50),
    Sketcher.Constraint("Equal", 48, 52),
    Sketcher.Constraint("Equal", 52, 54),
    Sketcher.Constraint("Equal", 50, 56),
    Sketcher.Constraint("Equal", 54, 58),
    Sketcher.Constraint("Equal", 58, 60),
    Sketcher.Constraint("Equal", 56, 62),
    Sketcher.Constraint("Equal", 60, 64),
    Sketcher.Constraint("Equal", 64, 66),
    Sketcher.Constraint("Equal", 62, 68),
    Sketcher.Constraint("Equal", 66, 70),
    Sketcher.Constraint("Equal", 70, 72),
    Sketcher.Constraint("Equal", 68, 74),
    Sketcher.Constraint("Equal", 72, 76),
    Sketcher.Constraint("Equal", 78, 79),
    Sketcher.Constraint("Equal", 79, 80),
    Sketcher.Constraint("Equal", 80, 81),
    Sketcher.Constraint("Equal", 81, 82),
    Sketcher.Constraint("Equal", 82, 83),
    Sketcher.Constraint("Equal", 83, 84),
    Sketcher.Constraint("Symmetric", 36, 3, 42, 3, -2),
    Sketcher.Constraint("Symmetric", 30, 3, 48, 3, -2),
    Sketcher.Constraint("Symmetric", 24, 3, 54, 3, -2),
    Sketcher.Constraint("Symmetric", 18, 3, 60, 3, -2),
    Sketcher.Constraint("Symmetric", 12, 3, 66, 3, -2),
    Sketcher.Constraint("Symmetric", 6, 3, 72, 3, -2),
    Sketcher.Constraint("PointOnObject", 78, 3, -2),
    Sketcher.Constraint("PointOnObject", 79, 3, -2),
    Sketcher.Constraint("PointOnObject", 80, 3, -2),
    Sketcher.Constraint("PointOnObject", 81, 3, -2),
    Sketcher.Constraint("PointOnObject", 82, 3, -2),
    Sketcher.Constraint("PointOnObject", 83, 3, -2),
    Sketcher.Constraint("PointOnObject", 84, 3, -2),
    Sketcher.Constraint("Vertical", 2, 3, 6, 3),
    Sketcher.Constraint("Vertical", 4, 3, 10, 3),
    Sketcher.Constraint("Vertical", 8, 3, 12, 3),
    Sketcher.Constraint("Vertical", 10, 3, 16, 3),
    Sketcher.Constraint("Vertical", 14, 3, 18, 3),
    Sketcher.Constraint("Vertical", 16, 3, 22, 3),
    Sketcher.Constraint("Vertical", 20, 3, 24, 3),
    Sketcher.Constraint("Vertical", 22, 3, 28, 3),
    Sketcher.Constraint("Vertical", 26, 3, 30, 3),
    Sketcher.Constraint("Vertical", 28, 3, 34, 3),
    Sketcher.Constraint("Vertical", 32, 3, 36, 3),
    Sketcher.Constraint("Vertical", 44, 3, 50, 3),
    Sketcher.Constraint("Vertical", 50, 3, 56, 3),
    Sketcher.Constraint("Vertical", 56, 3, 62, 3),
    Sketcher.Constraint("Vertical", 62, 3, 68, 3),
    Sketcher.Constraint("Vertical", 68, 3, 74, 3),
    Sketcher.Constraint("Vertical", 72, 3, 76, 3),
    Sketcher.Constraint("Equal", 35, 43),
    Sketcher.Constraint("Equal", 7, 13),
    Sketcher.Constraint("Equal", 13, 19),
    Sketcher.Constraint("Equal", 19, 25),
    Sketcher.Constraint("Equal", 25, 31),
    Sketcher.Constraint("Radius", 2, 1.0),
    Sketcher.Constraint("Radius", 38, 4.0),
    Sketcher.Constraint("Diameter", 78, 3.3),
    Sketcher.Constraint("Radius", 4, 1.7),
    Sketcher.Constraint("DistanceX", 0, 1, 0, 2, 25.0),
    Sketcher.Constraint("DistanceX", -1, 1, 4, 3, 10.85),
    Sketcher.Constraint("DistanceY", 1, 2, 1, 1, 6.8),
    Sketcher.Constraint("DistanceY", 38, 3, -1, 1, 22.0),
    Sketcher.Constraint("DistanceY", -1, 1, 0, 2, 26.0),
    Sketcher.Constraint("DistanceY", 7, 2, 7, 1, 0.95),
    Sketcher.Constraint("DistanceY", 78, 3, -1, 1, 18.5),
    Sketcher.Constraint("DistanceY", 80, 3, -1, 1, 5.8),
    Sketcher.Constraint("DistanceY", -1, 1, 82, 3, 6.9),
    Sketcher.Constraint("DistanceY", -1, 1, 84, 3, 19.6),
    Sketcher.Constraint("DistanceY", 79, 3, -1, 1, 12.15),
    Sketcher.Constraint("DistanceY", -1, 1, 81, 3, 0.55),
    Sketcher.Constraint("DistanceY", -1, 1, 83, 3, 13.25),
])
pad1 = doc.addObject("PartDesign::Pad", "Pad")
body.addObject(pad1)
pad1.Profile = sketch1
pad1.Length = 2
pad1.Reversed = True

# Sketch on XZ plane
sketch2 = doc.addObject("Sketcher::SketchObject", "Sketch001")
body.addObject(sketch2)
sketch2.AttachmentSupport = (doc.XZ_Plane, [""])
sketch2.MapMode = "FlatFace"
sketch2.AttachmentOffset = App.Placement(App.Vector(0, 0, -2), App.Rotation())
sketch2.addGeometry([
    Part.LineSegment(App.Vector(-12.5, 24, 0), App.Vector(-12.5, 26, 0)),
    Part.LineSegment(App.Vector(-12.5, 26, 0), App.Vector(12.5, 26, 0)),
    Part.LineSegment(App.Vector(12.5, 26, 0), App.Vector(12.5, 24, 0)),
    Part.LineSegment(App.Vector(12.5, 24, 0), App.Vector(-12.5, 24, 0)),
], False)
sketch2.addConstraint([
    Sketcher.Constraint("Coincident", 0, 2, 1, 1),
    Sketcher.Constraint("Coincident", 1, 2, 2, 1),
    Sketcher.Constraint("Coincident", 2, 2, 3, 1),
    Sketcher.Constraint("Coincident", 3, 2, 0, 1),
    Sketcher.Constraint("Vertical", 0),
    Sketcher.Constraint("Horizontal", 1),
    Sketcher.Constraint("Vertical", 2),
    Sketcher.Constraint("Horizontal", 3),
    Sketcher.Constraint("DistanceY", 0, 1, 0, 2, 2.0),
    Sketcher.Constraint("DistanceX", 1, 1, 1, 2, 25.0),
    Sketcher.Constraint("DistanceY", -1, 1, 0, 2, 26.0),
    Sketcher.Constraint("DistanceX", 0, 2, -1, 1, 12.5),
])
pad2 = doc.addObject("PartDesign::Pad", "Pad001")
body.addObject(pad2)
pad2.Profile = sketch2
pad2.Length = 27
pad2.Reversed = True

# Sketch on XY plane
sketch3 = doc.addObject("Sketcher::SketchObject", "Sketch002")
body.addObject(sketch3)
sketch3.AttachmentSupport = (doc.XY_Plane, [""])
sketch3.MapMode = "FlatFace"
sketch3.AttachmentOffset = App.Placement(App.Vector(0, 0, 26), App.Rotation())
sketch3.addGeometry([
    Part.Circle(App.Vector(0, 14.5, 0), App.Vector(0, 0, 1), 3.8),  # 0
    Part.Circle(App.Vector(0, 23, 0), App.Vector(0, 0, 1), 1.6),  # 1
    Part.Circle(App.Vector(-8.5, 14.5, 0), App.Vector(0, 0, 1), 1.6),  # 2
    Part.Circle(App.Vector(0, 6, 0), App.Vector(0, 0, 1), 1.6),  # 3
    Part.Circle(App.Vector(8.5, 14.5, 0), App.Vector(0, 0, 1), 1.6),  # 4
    Part.LineSegment(App.Vector(-12.5, 29, 0), App.Vector(-12.5, 14.5, 0)),  # 5
    Part.ArcOfCircle(Part.Circle(App.Vector(0, 14.5, 0), App.Vector(0, 0, 1), 12.5), math.radians(0), math.radians(180)),  # 6
    Part.LineSegment(App.Vector(12.5, 14.5, 0), App.Vector(12.5, 29, 0)),  # 7
    Part.LineSegment(App.Vector(12.5, 29, 0), App.Vector(-12.5, 29, 0)),  # 8
], False)
sketch3.addConstraint([
    Sketcher.Constraint("Tangent", 5, 2, 6, 2),
    Sketcher.Constraint("Tangent", 6, 1, 7, 1),
    Sketcher.Constraint("Coincident", 7, 2, 8, 1),
    Sketcher.Constraint("Coincident", 8, 2, 5, 1),
    Sketcher.Constraint("Vertical", 5),
    Sketcher.Constraint("Vertical", 7),
    Sketcher.Constraint("Horizontal", 8),
    Sketcher.Constraint("Coincident", 6, 3, 0, 3),
    Sketcher.Constraint("Equal", 1, 2),
    Sketcher.Constraint("Equal", 2, 3),
    Sketcher.Constraint("Equal", 3, 4),
    Sketcher.Constraint("Symmetric", 2, 3, 4, 3, -2),
    Sketcher.Constraint("PointOnObject", 0, 3, -2),
    Sketcher.Constraint("PointOnObject", 1, 3, -2),
    Sketcher.Constraint("PointOnObject", 3, 3, -2),
    Sketcher.Constraint("Horizontal", 0, 3, 2, 3),
    Sketcher.Constraint("Diameter", 0, 7.5),
    Sketcher.Constraint("Diameter", 1, 3.3),
    Sketcher.Constraint("DistanceY", 5, 2, 5, 1, 14.5),
    Sketcher.Constraint("DistanceY", -1, 1, 0, 3, 14.5),
    Sketcher.Constraint("Radius", 6, 12.5),
    Sketcher.Constraint("DistanceY", -1, 1, 1, 3, 23.0),
    Sketcher.Constraint("DistanceY", -1, 1, 3, 3, 6.0),
    Sketcher.Constraint("DistanceX", 2, 3, 4, 3, 17.0),
])
pocket1 = doc.addObject("PartDesign::Pocket", "Pocket")
body.addObject(pocket1)
pocket1.Profile = sketch3
pocket1.Type = "ThroughAll"
doc.recompute()

fillet = doc.addObject("PartDesign::Fillet", "Fillet")
body.addObject(fillet)
fillet.Base = (pocket1, edges_at(pocket1, [(0, 0, 26)]))
fillet.Radius = 2

doc.recompute()
